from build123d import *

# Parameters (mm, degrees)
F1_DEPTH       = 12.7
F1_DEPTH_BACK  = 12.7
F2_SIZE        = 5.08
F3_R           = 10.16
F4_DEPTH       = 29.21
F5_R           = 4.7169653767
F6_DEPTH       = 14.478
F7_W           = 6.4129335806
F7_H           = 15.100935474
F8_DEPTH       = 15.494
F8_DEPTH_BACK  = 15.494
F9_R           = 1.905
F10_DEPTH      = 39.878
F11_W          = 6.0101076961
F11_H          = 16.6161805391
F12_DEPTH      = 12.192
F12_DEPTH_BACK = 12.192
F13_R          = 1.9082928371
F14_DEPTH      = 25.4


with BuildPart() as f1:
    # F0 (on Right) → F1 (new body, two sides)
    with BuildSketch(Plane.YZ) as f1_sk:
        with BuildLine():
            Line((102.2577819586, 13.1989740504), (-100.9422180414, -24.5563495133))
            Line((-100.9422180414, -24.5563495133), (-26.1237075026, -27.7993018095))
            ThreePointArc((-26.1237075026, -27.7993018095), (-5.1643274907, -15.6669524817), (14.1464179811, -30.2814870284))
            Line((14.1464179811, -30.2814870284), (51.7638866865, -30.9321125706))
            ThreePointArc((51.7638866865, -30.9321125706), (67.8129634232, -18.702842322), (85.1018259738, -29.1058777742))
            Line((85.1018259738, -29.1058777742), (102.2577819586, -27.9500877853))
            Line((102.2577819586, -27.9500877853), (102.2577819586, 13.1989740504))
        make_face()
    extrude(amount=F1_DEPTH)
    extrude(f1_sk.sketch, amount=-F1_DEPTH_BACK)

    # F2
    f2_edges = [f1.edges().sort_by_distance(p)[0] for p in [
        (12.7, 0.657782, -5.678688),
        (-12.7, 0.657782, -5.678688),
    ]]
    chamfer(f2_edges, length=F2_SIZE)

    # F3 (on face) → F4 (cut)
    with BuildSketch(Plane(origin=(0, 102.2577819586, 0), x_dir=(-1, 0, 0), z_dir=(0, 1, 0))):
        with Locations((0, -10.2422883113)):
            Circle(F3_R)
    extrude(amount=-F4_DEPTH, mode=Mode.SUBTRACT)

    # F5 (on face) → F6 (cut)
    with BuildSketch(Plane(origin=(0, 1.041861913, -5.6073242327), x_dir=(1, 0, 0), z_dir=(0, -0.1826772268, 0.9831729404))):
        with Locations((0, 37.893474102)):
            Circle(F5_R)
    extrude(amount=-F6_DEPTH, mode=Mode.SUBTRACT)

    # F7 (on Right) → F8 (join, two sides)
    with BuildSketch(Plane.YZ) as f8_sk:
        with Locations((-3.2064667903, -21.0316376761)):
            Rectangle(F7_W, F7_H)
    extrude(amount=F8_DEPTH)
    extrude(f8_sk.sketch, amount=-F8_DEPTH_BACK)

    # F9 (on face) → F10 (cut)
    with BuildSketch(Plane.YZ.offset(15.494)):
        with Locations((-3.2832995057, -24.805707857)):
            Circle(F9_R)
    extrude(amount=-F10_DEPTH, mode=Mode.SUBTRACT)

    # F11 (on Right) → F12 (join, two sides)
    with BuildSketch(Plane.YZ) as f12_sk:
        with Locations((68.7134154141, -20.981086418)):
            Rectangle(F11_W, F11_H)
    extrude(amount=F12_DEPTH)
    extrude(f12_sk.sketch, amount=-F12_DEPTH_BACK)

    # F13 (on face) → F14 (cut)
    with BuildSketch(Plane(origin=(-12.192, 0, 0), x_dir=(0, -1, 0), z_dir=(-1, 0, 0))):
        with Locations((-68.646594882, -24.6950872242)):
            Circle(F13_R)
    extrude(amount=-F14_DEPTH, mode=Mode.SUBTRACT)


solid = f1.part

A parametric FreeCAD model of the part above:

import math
import FreeCAD as App
import Part
import Sketcher
from FreeCAD import Vector
Q = App.Units.Quantity


def edges_at(feature, points):
    """Names of the edges that pass closest to the given points."""
    edges = feature.Shape.Edges
    near = lambda p: min(range(len(edges)), key=lambda i: edges[i].distToShape(Part.Vertex(*p))[0])
    return sorted({f"Edge{near(p) + 1}" for p in points})

doc = App.newDocument("Part")
body = doc.addObject("PartDesign::Body", "Body")

# Sketch on YZ plane
sketch1 = body.newObject("Sketcher::SketchObject", "Sketch")
sketch1.AttachmentSupport = (doc.getObject("YZ_Plane"), [""])
sketch1.MapMode = "FlatFace"
sketch1.addGeometry([
    Part.LineSegment(Vector(102, 13, 0), Vector(-101, -25, 0)),  # 0
    Part.LineSegment(Vector(-101, -25, 0), Vector(-26, -28, 0)),  # 1
    Part.ArcOfCircle(Part.Circle(Vector(-7, -38, 0), Vector(0, 0, 1), 22), math.radians(19), math.radians(154)),  # 2
    Part.LineSegment(Vector(14, -30, 0), Vector(52, -31, 0)),  # 3
    Part.ArcOfCircle(Part.Circle(Vector(69, -37, 0), Vector(0, 0, 1), 18), math.radians(25), math.radians(161)),  # 4
    Part.LineSegment(Vector(85, -29, 0), Vector(102, -28, 0)),  # 5
    Part.LineSegment(Vector(102, -28, 0), Vector(102, 13, 0)),  # 6
], False)
sketch1.addConstraint([
    Sketcher.Constraint("Coincident", 0, 2, 1, 1),
    Sketcher.Constraint("Coincident", 1, 2, 2, 2),
    Sketcher.Constraint("Coincident", 2, 1, 3, 1),
    Sketcher.Constraint("Coincident", 3, 2, 4, 2),
    Sketcher.Constraint("Coincident", 4, 1, 5, 1),
    Sketcher.Constraint("Coincident", 5, 2, 6, 1),
    Sketcher.Constraint("Coincident", 6, 2, 0, 1),
    Sketcher.Constraint("Vertical", 6),
    Sketcher.Constraint("Radius", 2, Q("21.88586 mm")),
    Sketcher.Constraint("Radius", 4, Q("17.961866 mm")),
    Sketcher.Constraint("DistanceY", 6, 1, 6, 2, Q("41.149062 mm")),
    Sketcher.Constraint("DistanceY", 1, 2, -1, 1, Q("27.799302 mm")),
    Sketcher.Constraint("DistanceX", 2, 3, 2, 1, Q("20.657199 mm")),
    Sketcher.Constraint("DistanceY", 2, 1, 5, 2, Q("2.331399 mm")),
    Sketcher.Constraint("Distance", 0, Q("206.677779 mm")),
    Sketcher.Constraint("Distance", 1, Q("74.888759 mm")),
    Sketcher.Constraint("DistanceX", 2, 3, -1, 1, Q("6.510781 mm")),
    Sketcher.Constraint("DistanceX", -1, 1, 4, 3, Q("68.795432 mm")),
    Sketcher.Constraint("DistanceY", 4, 3, -1, 1, Q("36.637819 mm")),
    Sketcher.Constraint("DistanceX", 0, 2, -1, 1, Q("100.942218 mm")),
    Sketcher.Constraint("DistanceY", 0, 2, -1, 1, Q("24.55635 mm")),
    Sketcher.Constraint("DistanceX", 2, 1, 3, 2, Q("37.617469 mm")),
    Sketcher.Constraint("DistanceY", 4, 3, 4, 1, Q("7.531941 mm")),
])
pad1 = body.newObject("PartDesign::Pad", "Pad")
pad1.Profile = sketch1
pad1.Type = "TwoLengths"
pad1.Length = Q("0.5 in")
pad1.Length2 = Q("0.5 in")
doc.recompute()

chamfer = body.newObject("PartDesign::Chamfer", "Chamfer")
chamfer.Base = (pad1, edges_at(pad1, [(12.7, 0.658, -5.679), (-12.7, 0.658, -5.679)]))
chamfer.Size = Q("0.2 in")

# Sketch on XZ plane
sketch2 = body.newObject("Sketcher::SketchObject", "Sketch001")
sketch2.AttachmentSupport = (doc.getObject("XZ_Plane"), [""])
sketch2.MapMode = "FlatFace"
sketch2.AttachmentOffset = App.Placement(Vector(0, 0, -102.257782), App.Rotation())
sketch2.addGeometry(Part.Circle(Vector(0, -10, 0), Vector(0, 0, 1), 10), False)
sketch2.addConstraint([
    Sketcher.Constraint("PointOnObject", 0, 3, -2),
    Sketcher.Constraint("Diameter", 0, Q("0.8 in")),
    Sketcher.Constraint("DistanceY", 0, 3, -1, 1, Q("10.242288 mm")),
])
pocket1 = body.newObject("PartDesign::Pocket", "Pocket")
pocket1.Profile = sketch2
pocket1.Length = Q("1.15 in")
pocket1.Reversed = True

# Sketch on an angled plane
sketch3 = body.newObject("Sketcher::SketchObject", "Sketch002")
sketch3.Placement = App.Placement(Vector(0, 1.041862, -5.607324), App.Rotation(Vector(1, 0, 0), Vector(0, 0.98317294, 0.182677227), Vector(0, -0.182677227, 0.98317294), "ZXY"))
sketch3.addGeometry(Part.Circle(Vector(0, 37.9, 0), Vector(0, 0, 1), 4.7), False)
sketch3.addConstraint([
    Sketcher.Constraint("PointOnObject", 0, 3, -2),
    Sketcher.Constraint("Diameter", 0, Q("9.433931 mm")),
    Sketcher.Constraint("DistanceY", -1, 1, 0, 3, Q("37.893474 mm")),
])
pocket2 = body.newObject("PartDesign::Pocket", "Pocket001")
pocket2.Profile = sketch3
pocket2.Length = Q("0.57 in")

# Sketch on YZ plane
sketch4 = body.newObject("Sketcher::SketchObject", "Sketch003")
sketch4.AttachmentSupport = (doc.getObject("YZ_Plane"), [""])
sketch4.MapMode = "FlatFace"
sketch4.addGeometry([
    Part.LineSegment(Vector(-6, -13, 0), Vector(-6, -29, 0)),
    Part.LineSegment(Vector(-6, -29, 0), Vector(0, -29, 0)),
    Part.LineSegment(Vector(0, -29, 0), Vector(0, -13, 0)),
    Part.LineSegment(Vector(0, -13, 0), Vector(-6, -13, 0)),
], False)
sketch4.addConstraint([
    Sketcher.Constraint("Coincident", 0, 2, 1, 1),
    Sketcher.Constraint("Coincident", 1, 2, 2, 1),
    Sketcher.Constraint("Coincident", 2, 2, 3, 1),
    Sketcher.Constraint("Coincident", 3, 2, 0, 1),
    Sketcher.Constraint("Vertical", 0),
    Sketcher.Constraint("Horizontal", 1),
    Sketcher.Constraint("Vertical", 2),
    Sketcher.Constraint("Horizontal", 3),
    Sketcher.Constraint("PointOnObject", 1, 2, -2),
    Sketcher.Constraint("DistanceX", 1, 1, 1, 2, Q("6.412934 mm")),
    Sketcher.Constraint("DistanceY", 0, 2, 0, 1, Q("15.100935 mm")),
    Sketcher.Constraint("DistanceY", 2, 2, -1, 1, Q("13.48117 mm")),
])
pad2 = body.newObject("PartDesign::Pad", "Pad001")
pad2.Profile = sketch4
pad2.Type = "TwoLengths"
pad2.Length = Q("0.61 in")
pad2.Length2 = Q("0.61 in")

# Sketch on YZ plane
sketch5 = body.newObject("Sketcher::SketchObject", "Sketch004")
sketch5.AttachmentSupport = (doc.getObject("YZ_Plane"), [""])
sketch5.MapMode = "FlatFace"
sketch5.AttachmentOffset = App.Placement(Vector(0, 0, 0.61 * 25.4), App.Rotation())
sketch5.addGeometry(Part.Circle(Vector(-3.3, -24.8, 0), Vector(0, 0, 1), 1.9), False)
sketch5.addConstraint([
    Sketcher.Constraint("Diameter", 0, Q("0.15 in")),
    Sketcher.Constraint("DistanceX", 0, 3, -1, 1, Q("3.2833 mm")),
    Sketcher.Constraint("DistanceY", 0, 3, -1, 1, Q("24.805708 mm")),
])
pocket3 = body.newObject("PartDesign::Pocket", "Pocket002")
pocket3.Profile = sketch5
pocket3.Length = Q("1.57 in")

# Sketch on YZ plane
sketch6 = body.newObject("Sketcher::SketchObject", "Sketch005")
sketch6.AttachmentSupport = (doc.getObject("YZ_Plane"), [""])
sketch6.MapMode = "FlatFace"
sketch6.addGeometry([
    Part.LineSegment(Vector(66, -13, 0), Vector(66, -29, 0)),
    Part.LineSegment(Vector(66, -29, 0), Vector(72, -29, 0)),
    Part.LineSegment(Vector(72, -29, 0), Vector(72, -13, 0)),
    Part.LineSegment(Vector(72, -13, 0), Vector(66, -13, 0)),
], False)
sketch6.addConstraint([
    Sketcher.Constraint("Coincident", 0, 2, 1, 1),
    Sketcher.Constraint("Coincident", 1, 2, 2, 1),
    Sketcher.Constraint("Coincident", 2, 2, 3, 1),
    Sketcher.Constraint("Coincident", 3, 2, 0, 1),
    Sketcher.Constraint("Vertical", 0),
    Sketcher.Constraint("Horizontal", 1),
    Sketcher.Constraint("Vertical", 2),
    Sketcher.Constraint("Horizontal", 3),
    Sketcher.Constraint("DistanceY", 0, 2, 0, 1, Q("16.616181 mm")),
    Sketcher.Constraint("DistanceX", 1, 1, 1, 2, Q("6.010108 mm")),
    Sketcher.Constraint("DistanceX", -1, 1, 0, 2, Q("65.708362 mm")),
    Sketcher.Constraint("DistanceY", 0, 2, -1, 1, Q("29.289177 mm")),
])
pad3 = body.newObject("PartDesign::Pad", "Pad002")
pad3.Profile = sketch6
pad3.Type = "TwoLengths"
pad3.Length = Q("0.48 in")
pad3.Length2 = Q("0.48 in")

# Sketch on YZ plane
sketch7 = body.newObject("Sketcher::SketchObject", "Sketch006")
sketch7.AttachmentSupport = (doc.getObject("YZ_Plane"), [""])
sketch7.MapMode = "FlatFace"
sketch7.AttachmentOffset = App.Placement(Vector(0, 0, -0.48 * 25.4), App.Rotation())
sketch7.addGeometry(Part.Circle(Vector(68.6, -24.7, 0), Vector(0, 0, 1), 1.9), False)
sketch7.addConstraint([
    Sketcher.Constraint("Diameter", 0, Q("3.816586 mm")),
    Sketcher.Constraint("DistanceX", -1, 1, 0, 3, Q("68.646595 mm")),
    Sketcher.Constraint("DistanceY", 0, 3, -1, 1, Q("24.695087 mm")),
])
pocket4 = body.newObject("PartDesign::Pocket", "Pocket003")
pocket4.Profile = sketch7
pocket4.Length = Q("1 in")
pocket4.Reversed = True

doc.recompute()
